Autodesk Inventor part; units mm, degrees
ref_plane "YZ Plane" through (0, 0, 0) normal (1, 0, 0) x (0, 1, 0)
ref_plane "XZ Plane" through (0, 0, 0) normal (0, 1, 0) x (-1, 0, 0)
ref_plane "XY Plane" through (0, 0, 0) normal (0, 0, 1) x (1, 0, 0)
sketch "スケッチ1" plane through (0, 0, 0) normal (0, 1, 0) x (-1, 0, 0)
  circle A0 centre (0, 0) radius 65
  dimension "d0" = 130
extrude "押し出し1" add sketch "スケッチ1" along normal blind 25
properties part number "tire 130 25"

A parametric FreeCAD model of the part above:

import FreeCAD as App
import Part
import Sketcher
Q = App.Units.Quantity

doc = App.newDocument("Part")
body = doc.addObject("PartDesign::Body", "Body")

sketch1 = body.newObject("Sketcher::SketchObject", "Sketch")
sketch1.AttachmentSupport = (doc.getObject("XZ_Plane"), [""])
sketch1.MapMode = "FlatFace"
sketch1.addGeometry(Part.Circle(App.Vector(0, 0, 0), App.Vector(0, 0, 1), 65), False)
sketch1.addConstraint([
    Sketcher.Constraint("Coincident", 0, 3, -1, 1),
    Sketcher.Constraint("Diameter", 0, Q("130 mm")),
])
pad1 = body.newObject("PartDesign::Pad", "Pad")
pad1.Profile = sketch1
pad1.Length = 25
pad1.Reversed = True

doc.recompute()
